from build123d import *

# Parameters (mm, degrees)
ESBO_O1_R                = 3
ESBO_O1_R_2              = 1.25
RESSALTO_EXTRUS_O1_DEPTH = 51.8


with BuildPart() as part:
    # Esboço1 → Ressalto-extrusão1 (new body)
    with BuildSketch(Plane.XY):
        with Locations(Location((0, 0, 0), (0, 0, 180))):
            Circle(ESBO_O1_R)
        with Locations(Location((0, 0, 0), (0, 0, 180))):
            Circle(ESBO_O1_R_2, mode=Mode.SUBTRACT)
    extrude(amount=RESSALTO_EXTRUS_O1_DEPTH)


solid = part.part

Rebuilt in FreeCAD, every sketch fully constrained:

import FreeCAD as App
import Part
import Sketcher

V = App.Vector
Q = App.Units.Quantity

doc = App.newDocument("Part")
body = doc.addObject("PartDesign::Body", "Body")

# Sketch on XY plane
sketch1 = body.newObject("Sketcher::SketchObject", "Sketch")
sketch1.AttachmentSupport = (doc.getObject("XY_Plane"), [""])
sketch1.MapMode = "FlatFace"
sketch1.addGeometry(Part.Circle(V(0, 0, 0), V(0, 0, 1), 3), False)
sketch1.addGeometry(Part.Circle(V(0, 0, 0), V(0, 0, 1), 1.25), False)
sketch1.addConstraint(Sketcher.Constraint("Coincident", 0, 3, -1, 1))
sketch1.addConstraint(Sketcher.Constraint("Coincident", 1, 3, -1, 1))
sketch1.addConstraint(Sketcher.Constraint("Diameter", 0, Q("6 mm")))
sketch1.addConstraint(Sketcher.Constraint("Diameter", 1, Q("2.5 mm")))
pad1 = body.newObject("PartDesign::Pad", "Pad")
pad1.Profile = sketch1
pad1.Length = 51.8

doc.recompute()
